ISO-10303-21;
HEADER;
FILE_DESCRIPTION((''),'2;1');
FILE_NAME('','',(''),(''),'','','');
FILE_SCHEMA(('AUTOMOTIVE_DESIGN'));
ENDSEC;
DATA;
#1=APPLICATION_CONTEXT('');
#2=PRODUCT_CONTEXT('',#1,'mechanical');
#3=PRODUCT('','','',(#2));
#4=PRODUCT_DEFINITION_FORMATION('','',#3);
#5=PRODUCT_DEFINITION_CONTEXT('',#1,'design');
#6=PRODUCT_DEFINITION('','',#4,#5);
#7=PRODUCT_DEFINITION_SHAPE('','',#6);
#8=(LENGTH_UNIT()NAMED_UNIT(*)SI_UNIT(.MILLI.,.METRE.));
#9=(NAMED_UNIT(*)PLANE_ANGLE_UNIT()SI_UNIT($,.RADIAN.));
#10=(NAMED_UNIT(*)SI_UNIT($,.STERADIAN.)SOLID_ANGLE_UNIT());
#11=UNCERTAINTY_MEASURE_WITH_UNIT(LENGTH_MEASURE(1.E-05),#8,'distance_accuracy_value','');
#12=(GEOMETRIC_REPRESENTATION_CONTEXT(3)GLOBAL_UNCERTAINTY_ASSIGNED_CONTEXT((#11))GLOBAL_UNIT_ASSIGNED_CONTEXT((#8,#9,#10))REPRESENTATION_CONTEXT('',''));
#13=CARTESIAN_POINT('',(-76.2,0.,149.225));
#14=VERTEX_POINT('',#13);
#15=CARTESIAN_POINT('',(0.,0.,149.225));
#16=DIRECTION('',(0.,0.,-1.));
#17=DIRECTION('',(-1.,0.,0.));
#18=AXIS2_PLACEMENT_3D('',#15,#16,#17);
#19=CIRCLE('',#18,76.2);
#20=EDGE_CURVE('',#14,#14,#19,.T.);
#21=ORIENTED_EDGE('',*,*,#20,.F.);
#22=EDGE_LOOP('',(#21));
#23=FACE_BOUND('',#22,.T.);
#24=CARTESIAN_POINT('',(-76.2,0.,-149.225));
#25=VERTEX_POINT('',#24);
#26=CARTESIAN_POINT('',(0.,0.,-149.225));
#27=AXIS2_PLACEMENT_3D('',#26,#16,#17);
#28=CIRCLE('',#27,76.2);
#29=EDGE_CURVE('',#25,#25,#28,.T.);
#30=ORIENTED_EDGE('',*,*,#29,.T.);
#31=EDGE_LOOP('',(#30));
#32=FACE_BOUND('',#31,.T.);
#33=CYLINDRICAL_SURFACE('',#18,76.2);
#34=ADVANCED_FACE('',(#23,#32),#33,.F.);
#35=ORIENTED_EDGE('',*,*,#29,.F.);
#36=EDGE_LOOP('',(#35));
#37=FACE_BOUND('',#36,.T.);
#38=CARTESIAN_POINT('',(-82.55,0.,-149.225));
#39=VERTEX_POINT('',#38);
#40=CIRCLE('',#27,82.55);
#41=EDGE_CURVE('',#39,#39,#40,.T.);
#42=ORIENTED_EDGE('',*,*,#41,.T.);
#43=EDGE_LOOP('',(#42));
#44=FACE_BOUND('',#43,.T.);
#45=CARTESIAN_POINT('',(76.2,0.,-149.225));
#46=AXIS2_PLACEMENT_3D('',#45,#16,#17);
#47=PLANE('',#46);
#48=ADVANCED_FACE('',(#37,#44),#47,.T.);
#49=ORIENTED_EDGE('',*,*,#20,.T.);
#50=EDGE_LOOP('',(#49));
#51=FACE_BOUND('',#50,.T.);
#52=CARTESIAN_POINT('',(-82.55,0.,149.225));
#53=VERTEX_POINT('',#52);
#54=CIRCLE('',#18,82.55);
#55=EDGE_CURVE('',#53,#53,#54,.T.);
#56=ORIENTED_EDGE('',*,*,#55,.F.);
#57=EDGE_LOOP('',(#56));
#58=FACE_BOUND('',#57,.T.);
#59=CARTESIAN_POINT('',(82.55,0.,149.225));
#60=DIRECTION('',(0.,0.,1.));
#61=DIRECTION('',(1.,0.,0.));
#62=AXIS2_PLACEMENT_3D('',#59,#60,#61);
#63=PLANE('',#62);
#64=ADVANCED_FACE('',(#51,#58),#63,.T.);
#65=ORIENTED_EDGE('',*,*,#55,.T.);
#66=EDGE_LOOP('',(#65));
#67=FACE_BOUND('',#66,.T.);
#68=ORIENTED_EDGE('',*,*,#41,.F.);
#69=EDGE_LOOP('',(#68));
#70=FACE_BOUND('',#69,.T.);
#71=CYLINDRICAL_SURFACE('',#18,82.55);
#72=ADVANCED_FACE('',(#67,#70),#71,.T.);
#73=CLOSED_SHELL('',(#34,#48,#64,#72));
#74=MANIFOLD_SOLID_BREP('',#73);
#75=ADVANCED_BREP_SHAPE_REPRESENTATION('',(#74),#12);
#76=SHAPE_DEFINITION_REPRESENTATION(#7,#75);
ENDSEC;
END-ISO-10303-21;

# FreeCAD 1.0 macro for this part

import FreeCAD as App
import Part
import Sketcher
from FreeCAD import Vector
Q = App.Units.Quantity


def add_polygon(sketch, points):
    """Adds a closed chain of lines whose ends are joined by coincident constraints."""
    first, n = sketch.GeometryCount, len(points)
    for a, b in zip(points, points[1:] + points[:1]):
        sketch.addGeometry(Part.LineSegment(App.Vector(*a, 0), App.Vector(*b, 0)), False)
    for i in range(n):
        sketch.addConstraint(Sketcher.Constraint("Coincident", first + i, 2, first + (i + 1) % n, 1))

doc = App.newDocument("Part")
body = doc.addObject("PartDesign::Body", "Body")

sketch1 = body.newObject("Sketcher::SketchObject", "Sketch")
sketch1.AttachmentSupport = (doc.getObject("XZ_Plane"), [""])
sketch1.MapMode = "FlatFace"
add_polygon(sketch1, [(76, 149), (76, -149), (83, -149), (83, 149)])
sketch1.addConstraint([
    Sketcher.Constraint("Vertical", 0),
    Sketcher.Constraint("Horizontal", 1),
    Sketcher.Constraint("Vertical", 2),
    Sketcher.Constraint("Horizontal", 3),
    Sketcher.Constraint("DistanceX", -1, 1, 0, 2, Q("3 in")),
    Sketcher.Constraint("DistanceX", 1, 1, 1, 2, Q("0.25 in")),
    Sketcher.Constraint("DistanceY", 0, 2, 0, 1, Q("11.75 in")),
    Sketcher.Constraint("DistanceY", 0, 2, -1, 1, Q("5.875 in")),
])
revolution = body.newObject("PartDesign::Revolution", "Revolution")
revolution.Profile = sketch1
revolution.ReferenceAxis = (sketch1, ["V_Axis"])
revolution.Angle = 360

doc.recompute()
